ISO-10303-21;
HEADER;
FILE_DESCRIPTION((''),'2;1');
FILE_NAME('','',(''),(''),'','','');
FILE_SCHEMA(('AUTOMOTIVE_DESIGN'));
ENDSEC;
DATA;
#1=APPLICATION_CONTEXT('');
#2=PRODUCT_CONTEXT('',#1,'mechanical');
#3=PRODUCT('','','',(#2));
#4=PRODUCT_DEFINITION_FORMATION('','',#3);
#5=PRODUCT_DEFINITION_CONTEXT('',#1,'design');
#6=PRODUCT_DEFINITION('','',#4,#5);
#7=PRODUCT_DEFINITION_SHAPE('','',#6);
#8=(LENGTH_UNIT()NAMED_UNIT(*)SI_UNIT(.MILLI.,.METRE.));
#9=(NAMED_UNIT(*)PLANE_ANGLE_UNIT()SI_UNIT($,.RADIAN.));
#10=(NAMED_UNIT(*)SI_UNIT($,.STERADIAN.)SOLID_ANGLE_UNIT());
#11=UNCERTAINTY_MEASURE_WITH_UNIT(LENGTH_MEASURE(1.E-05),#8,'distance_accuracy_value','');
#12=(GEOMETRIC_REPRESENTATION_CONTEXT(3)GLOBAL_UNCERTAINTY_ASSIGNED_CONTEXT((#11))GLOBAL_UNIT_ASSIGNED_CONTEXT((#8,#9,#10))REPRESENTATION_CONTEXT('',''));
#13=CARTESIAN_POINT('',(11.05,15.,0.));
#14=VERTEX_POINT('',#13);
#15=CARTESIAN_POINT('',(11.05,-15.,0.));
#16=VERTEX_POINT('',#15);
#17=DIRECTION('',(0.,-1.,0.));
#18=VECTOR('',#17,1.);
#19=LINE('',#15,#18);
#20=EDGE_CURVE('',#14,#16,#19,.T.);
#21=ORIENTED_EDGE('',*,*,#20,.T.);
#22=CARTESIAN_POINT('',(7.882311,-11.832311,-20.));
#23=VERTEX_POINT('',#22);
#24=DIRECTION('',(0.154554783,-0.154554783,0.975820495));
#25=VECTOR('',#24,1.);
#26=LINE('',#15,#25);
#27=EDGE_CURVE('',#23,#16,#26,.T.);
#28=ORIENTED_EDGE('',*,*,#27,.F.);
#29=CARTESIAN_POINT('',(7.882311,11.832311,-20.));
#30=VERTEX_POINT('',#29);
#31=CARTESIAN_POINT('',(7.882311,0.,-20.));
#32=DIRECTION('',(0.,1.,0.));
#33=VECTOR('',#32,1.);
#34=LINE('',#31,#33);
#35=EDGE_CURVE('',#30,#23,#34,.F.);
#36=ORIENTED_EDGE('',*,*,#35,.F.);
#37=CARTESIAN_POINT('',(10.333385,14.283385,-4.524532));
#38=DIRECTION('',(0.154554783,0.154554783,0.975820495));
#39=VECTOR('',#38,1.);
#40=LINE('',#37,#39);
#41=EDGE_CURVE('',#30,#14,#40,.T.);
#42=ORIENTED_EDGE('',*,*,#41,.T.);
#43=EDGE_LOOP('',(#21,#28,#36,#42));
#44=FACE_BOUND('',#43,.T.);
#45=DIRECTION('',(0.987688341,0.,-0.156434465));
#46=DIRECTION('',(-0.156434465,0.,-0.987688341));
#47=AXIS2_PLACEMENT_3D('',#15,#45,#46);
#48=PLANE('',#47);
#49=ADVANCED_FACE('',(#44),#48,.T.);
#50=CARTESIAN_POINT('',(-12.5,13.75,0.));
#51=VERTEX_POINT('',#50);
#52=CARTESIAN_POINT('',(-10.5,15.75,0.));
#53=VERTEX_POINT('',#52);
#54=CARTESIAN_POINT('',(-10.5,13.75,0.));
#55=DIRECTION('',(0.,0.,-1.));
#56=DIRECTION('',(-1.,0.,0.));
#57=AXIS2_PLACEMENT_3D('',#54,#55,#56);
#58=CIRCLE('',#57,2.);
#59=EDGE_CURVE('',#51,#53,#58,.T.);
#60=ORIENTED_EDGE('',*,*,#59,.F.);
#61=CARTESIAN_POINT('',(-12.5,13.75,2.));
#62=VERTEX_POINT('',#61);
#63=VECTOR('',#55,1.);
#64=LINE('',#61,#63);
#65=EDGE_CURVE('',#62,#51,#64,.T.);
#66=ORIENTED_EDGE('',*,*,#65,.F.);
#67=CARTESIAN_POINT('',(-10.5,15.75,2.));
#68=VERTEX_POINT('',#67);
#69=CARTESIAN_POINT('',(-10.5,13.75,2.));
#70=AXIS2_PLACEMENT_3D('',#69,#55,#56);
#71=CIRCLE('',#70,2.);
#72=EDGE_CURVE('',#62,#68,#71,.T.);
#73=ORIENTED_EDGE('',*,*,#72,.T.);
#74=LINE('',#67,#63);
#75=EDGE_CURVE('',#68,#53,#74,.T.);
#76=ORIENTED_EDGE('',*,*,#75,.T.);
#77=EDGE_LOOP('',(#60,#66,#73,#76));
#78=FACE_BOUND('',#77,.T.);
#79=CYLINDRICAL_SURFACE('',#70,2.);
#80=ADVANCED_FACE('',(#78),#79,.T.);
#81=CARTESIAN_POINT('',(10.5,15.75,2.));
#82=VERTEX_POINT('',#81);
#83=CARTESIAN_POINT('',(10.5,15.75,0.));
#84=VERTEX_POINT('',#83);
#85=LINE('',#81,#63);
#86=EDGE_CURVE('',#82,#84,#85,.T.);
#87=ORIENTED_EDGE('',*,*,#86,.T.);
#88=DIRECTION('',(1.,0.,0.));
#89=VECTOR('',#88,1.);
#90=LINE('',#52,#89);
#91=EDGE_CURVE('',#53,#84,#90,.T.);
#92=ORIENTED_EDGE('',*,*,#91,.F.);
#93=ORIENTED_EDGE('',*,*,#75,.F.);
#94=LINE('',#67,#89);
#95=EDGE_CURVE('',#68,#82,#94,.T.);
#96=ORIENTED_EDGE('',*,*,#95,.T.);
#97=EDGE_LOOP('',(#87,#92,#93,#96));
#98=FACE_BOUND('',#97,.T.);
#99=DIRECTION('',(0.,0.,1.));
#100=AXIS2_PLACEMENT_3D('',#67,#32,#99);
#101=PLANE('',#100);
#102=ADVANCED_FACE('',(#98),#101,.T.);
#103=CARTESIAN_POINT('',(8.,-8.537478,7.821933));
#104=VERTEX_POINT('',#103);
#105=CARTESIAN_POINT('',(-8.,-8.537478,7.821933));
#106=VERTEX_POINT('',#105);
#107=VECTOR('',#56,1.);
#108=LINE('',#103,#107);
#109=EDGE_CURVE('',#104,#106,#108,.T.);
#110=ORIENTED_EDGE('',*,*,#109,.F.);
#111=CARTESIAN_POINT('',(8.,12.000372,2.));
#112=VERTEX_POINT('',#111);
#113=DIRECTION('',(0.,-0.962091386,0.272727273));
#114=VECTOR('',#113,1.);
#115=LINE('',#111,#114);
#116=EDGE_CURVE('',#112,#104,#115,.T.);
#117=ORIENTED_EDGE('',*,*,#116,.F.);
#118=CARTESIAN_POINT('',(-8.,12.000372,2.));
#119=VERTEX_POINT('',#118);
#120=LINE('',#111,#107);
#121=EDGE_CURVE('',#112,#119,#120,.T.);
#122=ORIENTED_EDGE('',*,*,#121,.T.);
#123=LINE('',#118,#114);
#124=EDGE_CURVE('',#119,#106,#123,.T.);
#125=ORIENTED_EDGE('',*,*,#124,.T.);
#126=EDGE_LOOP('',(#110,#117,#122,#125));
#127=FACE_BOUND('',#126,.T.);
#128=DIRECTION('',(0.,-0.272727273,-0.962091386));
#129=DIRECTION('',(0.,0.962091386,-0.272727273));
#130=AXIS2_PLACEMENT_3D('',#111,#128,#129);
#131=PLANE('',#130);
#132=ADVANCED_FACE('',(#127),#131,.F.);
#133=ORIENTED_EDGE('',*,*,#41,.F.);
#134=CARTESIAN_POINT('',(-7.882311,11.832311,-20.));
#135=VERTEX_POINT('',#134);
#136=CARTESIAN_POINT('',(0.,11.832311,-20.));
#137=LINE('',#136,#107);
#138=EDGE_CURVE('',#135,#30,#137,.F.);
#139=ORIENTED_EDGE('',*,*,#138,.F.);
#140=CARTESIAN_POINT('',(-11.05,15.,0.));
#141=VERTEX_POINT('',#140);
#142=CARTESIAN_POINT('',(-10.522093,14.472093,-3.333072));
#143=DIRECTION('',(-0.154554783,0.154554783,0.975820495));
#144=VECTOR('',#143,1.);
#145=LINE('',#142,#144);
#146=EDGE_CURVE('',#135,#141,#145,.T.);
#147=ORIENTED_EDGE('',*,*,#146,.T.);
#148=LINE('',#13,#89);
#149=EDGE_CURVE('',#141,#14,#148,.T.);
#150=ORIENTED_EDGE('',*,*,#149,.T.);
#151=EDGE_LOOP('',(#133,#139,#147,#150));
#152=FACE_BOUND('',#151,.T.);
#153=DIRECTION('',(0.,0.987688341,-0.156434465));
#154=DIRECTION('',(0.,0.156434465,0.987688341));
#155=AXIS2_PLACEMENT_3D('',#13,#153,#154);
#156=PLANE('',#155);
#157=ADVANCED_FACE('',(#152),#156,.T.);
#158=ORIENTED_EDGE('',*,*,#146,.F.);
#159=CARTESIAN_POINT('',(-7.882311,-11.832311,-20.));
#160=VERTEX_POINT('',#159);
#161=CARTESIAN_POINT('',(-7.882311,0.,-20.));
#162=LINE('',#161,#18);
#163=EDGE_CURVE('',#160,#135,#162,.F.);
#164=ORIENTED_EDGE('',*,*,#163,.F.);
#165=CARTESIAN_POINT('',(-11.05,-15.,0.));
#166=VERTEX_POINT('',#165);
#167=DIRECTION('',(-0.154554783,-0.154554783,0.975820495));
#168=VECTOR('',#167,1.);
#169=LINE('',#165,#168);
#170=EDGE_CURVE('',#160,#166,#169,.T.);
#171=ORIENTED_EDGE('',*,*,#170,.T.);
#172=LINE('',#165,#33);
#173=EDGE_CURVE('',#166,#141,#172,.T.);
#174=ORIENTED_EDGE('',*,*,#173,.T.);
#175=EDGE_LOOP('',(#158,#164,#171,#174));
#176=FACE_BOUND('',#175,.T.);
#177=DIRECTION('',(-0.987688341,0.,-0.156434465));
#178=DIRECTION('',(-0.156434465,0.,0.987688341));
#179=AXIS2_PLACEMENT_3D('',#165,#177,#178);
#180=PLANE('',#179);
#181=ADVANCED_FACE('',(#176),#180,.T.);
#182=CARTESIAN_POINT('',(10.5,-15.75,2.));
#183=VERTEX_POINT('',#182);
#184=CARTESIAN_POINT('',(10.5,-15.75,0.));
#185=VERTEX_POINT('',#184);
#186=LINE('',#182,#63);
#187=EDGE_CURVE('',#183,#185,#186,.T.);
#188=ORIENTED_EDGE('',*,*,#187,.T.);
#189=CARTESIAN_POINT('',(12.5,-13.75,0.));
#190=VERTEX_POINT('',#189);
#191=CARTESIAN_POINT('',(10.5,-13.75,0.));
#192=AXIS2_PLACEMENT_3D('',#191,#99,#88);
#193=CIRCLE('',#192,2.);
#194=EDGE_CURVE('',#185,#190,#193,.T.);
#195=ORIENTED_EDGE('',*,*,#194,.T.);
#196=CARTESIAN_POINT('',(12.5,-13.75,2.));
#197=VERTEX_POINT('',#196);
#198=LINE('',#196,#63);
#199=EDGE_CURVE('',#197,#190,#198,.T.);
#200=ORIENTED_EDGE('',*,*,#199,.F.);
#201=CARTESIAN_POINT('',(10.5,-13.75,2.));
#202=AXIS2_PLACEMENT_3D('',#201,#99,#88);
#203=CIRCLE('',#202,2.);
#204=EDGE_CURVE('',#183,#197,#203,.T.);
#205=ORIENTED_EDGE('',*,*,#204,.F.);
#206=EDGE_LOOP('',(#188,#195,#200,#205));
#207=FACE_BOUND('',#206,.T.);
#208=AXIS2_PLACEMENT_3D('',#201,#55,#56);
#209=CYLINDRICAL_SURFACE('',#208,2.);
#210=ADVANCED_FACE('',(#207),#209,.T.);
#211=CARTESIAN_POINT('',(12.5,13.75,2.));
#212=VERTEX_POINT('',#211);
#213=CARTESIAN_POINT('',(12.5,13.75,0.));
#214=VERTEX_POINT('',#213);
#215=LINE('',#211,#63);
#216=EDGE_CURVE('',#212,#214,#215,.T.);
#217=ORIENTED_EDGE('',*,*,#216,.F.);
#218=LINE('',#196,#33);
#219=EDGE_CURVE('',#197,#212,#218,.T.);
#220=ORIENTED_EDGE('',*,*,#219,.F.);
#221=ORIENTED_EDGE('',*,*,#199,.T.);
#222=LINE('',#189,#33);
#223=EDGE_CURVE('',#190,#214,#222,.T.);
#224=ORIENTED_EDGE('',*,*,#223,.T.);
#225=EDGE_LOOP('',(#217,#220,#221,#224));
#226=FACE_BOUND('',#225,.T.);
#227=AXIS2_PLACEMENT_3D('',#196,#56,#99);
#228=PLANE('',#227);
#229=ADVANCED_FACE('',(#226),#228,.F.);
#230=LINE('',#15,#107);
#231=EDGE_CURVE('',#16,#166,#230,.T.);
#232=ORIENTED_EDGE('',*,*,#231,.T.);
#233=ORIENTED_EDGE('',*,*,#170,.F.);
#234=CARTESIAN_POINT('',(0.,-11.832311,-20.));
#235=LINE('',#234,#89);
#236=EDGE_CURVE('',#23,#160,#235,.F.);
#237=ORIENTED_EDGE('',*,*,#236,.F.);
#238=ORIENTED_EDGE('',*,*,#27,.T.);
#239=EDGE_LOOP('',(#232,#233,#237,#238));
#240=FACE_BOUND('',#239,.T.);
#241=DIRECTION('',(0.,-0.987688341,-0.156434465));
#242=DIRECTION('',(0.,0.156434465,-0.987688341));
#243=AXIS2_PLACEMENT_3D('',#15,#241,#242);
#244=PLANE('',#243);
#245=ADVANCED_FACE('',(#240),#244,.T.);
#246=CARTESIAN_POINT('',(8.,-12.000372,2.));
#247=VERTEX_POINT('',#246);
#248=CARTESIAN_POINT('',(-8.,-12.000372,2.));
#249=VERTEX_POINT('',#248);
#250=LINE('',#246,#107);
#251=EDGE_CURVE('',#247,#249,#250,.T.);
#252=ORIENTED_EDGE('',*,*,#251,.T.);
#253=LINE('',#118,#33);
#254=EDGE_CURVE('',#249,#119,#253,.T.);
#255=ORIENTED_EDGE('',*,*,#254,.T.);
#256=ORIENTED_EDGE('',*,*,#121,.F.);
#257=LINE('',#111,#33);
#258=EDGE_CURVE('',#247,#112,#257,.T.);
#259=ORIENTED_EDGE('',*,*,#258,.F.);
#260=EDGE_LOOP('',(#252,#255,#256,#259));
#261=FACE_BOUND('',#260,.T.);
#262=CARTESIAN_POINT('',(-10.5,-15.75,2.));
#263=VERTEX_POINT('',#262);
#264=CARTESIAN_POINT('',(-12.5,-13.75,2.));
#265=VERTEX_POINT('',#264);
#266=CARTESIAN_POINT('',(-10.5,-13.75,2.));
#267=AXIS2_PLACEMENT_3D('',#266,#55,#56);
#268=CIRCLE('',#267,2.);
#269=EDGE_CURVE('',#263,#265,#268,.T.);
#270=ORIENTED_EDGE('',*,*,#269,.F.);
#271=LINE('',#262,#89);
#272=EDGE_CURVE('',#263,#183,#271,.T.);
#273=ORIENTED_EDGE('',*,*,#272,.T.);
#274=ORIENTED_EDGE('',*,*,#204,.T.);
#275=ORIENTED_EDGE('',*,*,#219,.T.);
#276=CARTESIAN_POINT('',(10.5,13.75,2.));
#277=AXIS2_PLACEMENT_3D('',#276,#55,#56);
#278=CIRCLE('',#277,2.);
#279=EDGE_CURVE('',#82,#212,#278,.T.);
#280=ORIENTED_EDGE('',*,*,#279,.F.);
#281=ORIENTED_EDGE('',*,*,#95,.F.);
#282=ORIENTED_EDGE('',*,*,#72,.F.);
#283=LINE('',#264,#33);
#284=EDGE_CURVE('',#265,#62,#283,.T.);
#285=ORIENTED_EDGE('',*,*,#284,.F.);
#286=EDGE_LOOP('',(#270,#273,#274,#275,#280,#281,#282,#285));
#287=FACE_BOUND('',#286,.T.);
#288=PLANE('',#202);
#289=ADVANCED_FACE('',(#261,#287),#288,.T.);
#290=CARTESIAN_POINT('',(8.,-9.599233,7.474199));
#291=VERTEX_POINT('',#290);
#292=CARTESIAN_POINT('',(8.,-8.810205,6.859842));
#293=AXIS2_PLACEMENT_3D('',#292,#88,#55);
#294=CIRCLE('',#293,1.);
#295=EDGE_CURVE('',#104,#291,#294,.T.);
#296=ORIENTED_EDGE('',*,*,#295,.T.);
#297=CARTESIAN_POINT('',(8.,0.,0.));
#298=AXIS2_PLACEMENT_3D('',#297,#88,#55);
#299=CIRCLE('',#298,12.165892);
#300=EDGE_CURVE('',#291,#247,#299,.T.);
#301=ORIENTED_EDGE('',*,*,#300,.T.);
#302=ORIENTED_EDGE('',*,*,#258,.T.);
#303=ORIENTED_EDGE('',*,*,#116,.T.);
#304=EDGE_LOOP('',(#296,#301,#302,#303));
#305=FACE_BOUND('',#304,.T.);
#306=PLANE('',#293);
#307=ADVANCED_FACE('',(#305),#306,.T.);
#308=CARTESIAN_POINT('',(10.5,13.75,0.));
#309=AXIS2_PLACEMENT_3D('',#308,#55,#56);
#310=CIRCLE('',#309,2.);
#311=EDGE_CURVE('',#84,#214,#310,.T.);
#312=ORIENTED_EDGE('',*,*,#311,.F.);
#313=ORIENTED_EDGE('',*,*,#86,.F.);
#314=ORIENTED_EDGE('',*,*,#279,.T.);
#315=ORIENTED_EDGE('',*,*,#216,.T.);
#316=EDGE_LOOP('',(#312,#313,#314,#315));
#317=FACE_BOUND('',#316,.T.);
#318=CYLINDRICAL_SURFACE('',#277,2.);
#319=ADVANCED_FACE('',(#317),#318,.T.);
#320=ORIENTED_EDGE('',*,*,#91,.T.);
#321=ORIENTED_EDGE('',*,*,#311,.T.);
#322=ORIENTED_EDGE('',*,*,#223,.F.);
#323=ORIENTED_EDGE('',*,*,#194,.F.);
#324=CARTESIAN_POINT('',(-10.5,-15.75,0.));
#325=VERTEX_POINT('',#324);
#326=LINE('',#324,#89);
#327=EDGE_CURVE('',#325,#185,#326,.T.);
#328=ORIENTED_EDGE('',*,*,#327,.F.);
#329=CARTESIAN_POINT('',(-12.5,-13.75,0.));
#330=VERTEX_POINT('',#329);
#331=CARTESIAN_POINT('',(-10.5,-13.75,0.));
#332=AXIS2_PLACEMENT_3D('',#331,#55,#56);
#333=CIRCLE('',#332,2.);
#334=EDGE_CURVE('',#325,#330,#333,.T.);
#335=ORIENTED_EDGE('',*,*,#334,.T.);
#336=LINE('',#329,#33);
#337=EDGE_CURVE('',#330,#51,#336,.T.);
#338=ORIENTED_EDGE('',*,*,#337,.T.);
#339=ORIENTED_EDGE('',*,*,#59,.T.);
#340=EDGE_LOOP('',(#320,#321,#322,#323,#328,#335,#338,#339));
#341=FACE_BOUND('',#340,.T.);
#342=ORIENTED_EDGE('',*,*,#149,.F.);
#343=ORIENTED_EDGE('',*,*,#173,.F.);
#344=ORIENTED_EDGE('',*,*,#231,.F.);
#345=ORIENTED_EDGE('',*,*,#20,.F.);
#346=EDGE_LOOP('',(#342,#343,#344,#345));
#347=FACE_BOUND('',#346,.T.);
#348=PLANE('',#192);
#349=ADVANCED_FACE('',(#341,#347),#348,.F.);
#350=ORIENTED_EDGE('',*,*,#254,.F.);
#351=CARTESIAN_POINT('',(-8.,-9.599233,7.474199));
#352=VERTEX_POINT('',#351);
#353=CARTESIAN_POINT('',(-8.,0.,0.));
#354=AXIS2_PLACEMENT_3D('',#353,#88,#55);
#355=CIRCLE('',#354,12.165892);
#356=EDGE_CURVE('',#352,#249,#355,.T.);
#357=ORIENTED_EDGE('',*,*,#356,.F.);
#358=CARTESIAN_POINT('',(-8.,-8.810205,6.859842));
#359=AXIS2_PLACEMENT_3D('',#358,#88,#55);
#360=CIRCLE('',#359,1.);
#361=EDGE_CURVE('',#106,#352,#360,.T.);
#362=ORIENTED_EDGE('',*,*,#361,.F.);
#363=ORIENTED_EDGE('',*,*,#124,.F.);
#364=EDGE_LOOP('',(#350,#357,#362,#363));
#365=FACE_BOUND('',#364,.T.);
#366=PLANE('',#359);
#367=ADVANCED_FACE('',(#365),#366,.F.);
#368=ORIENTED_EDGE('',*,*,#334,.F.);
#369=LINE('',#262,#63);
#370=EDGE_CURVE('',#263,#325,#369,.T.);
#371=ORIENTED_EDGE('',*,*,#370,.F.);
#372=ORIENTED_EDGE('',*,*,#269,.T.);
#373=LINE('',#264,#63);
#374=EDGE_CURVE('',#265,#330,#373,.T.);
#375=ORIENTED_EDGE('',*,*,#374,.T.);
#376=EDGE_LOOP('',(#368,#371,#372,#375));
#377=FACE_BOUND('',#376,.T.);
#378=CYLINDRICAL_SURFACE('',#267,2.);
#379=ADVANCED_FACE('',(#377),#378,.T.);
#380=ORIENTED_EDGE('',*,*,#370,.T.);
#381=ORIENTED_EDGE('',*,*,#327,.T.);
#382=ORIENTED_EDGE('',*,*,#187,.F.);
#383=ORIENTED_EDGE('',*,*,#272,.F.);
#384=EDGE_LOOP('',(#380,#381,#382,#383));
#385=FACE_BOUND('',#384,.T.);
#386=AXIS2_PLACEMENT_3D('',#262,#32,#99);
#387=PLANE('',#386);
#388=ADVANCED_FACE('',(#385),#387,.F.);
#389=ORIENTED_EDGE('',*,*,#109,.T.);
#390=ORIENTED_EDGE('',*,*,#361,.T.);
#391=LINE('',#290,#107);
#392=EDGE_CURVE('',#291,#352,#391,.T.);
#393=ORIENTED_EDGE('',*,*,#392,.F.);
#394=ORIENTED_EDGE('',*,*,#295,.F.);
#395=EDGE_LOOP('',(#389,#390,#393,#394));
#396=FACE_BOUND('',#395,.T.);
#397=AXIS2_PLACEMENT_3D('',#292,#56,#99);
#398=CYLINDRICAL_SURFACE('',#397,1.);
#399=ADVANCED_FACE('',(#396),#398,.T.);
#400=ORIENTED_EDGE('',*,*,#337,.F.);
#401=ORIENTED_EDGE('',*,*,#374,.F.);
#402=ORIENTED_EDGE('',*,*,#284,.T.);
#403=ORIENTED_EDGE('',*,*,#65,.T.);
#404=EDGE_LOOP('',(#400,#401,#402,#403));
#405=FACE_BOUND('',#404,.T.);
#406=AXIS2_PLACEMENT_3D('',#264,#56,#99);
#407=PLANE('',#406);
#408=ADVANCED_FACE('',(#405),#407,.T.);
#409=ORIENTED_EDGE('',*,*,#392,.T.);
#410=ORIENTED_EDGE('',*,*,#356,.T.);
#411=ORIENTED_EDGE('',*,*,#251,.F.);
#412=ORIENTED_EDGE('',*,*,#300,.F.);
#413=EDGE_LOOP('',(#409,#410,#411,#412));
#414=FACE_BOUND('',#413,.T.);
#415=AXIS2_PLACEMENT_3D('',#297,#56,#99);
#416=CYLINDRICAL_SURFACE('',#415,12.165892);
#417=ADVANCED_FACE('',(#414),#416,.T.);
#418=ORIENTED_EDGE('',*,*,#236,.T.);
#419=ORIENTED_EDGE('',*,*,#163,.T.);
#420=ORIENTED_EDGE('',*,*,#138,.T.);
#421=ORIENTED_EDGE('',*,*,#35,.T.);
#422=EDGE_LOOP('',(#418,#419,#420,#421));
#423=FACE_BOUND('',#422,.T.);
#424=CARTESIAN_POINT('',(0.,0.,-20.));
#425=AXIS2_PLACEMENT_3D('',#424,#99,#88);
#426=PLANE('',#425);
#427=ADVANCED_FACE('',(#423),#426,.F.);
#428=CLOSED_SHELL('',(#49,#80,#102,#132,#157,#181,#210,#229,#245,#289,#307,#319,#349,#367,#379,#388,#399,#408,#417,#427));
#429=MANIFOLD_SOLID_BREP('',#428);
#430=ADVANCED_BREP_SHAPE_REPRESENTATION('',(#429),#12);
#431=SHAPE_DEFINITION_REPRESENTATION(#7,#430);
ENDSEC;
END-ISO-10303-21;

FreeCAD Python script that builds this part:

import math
import FreeCAD as App
import Part
import Sketcher
from FreeCAD import Vector
Q = App.Units.Quantity


def add_polygon(sketch, points):
    """Adds a closed chain of lines whose ends are joined by coincident constraints."""
    first, n = sketch.GeometryCount, len(points)
    for a, b in zip(points, points[1:] + points[:1]):
        sketch.addGeometry(Part.LineSegment(App.Vector(*a, 0), App.Vector(*b, 0)), False)
    for i in range(n):
        sketch.addConstraint(Sketcher.Constraint("Coincident", first + i, 2, first + (i + 1) % n, 1))

doc = App.newDocument("Part")
body = doc.addObject("PartDesign::Body", "Body")

# Sketch on XY plane
sketch1 = doc.addObject("Sketcher::SketchObject", "Sketch")
body.addObject(sketch1)
sketch1.AttachmentSupport = (doc.XY_Plane, [""])
sketch1.MapMode = "FlatFace"
sketch1.addGeometry([
    Part.LineSegment(Vector(-10.5, -15.8, 0), Vector(10.5, -15.8, 0)),  # 0
    Part.ArcOfCircle(Part.Circle(Vector(10.5, -13.7, 0), Vector(0, 0, 1), 2), math.radians(-90), math.radians(0)),  # 1
    Part.LineSegment(Vector(12.5, -13.8, 0), Vector(12.5, 13.8, 0)),  # 2
    Part.ArcOfCircle(Part.Circle(Vector(10.5, 13.7, 0), Vector(0, 0, 1), 2), math.radians(0), math.radians(90)),  # 3
    Part.LineSegment(Vector(10.5, 15.8, 0), Vector(-10.5, 15.8, 0)),  # 4
    Part.ArcOfCircle(Part.Circle(Vector(-10.5, 13.7, 0), Vector(0, 0, 1), 2), math.radians(90), math.radians(180)),  # 5
    Part.LineSegment(Vector(-12.5, 13.8, 0), Vector(-12.5, -13.8, 0)),  # 6
    Part.ArcOfCircle(Part.Circle(Vector(-10.5, -13.7, 0), Vector(0, 0, 1), 2), math.radians(-180), math.radians(-90)),  # 7
], False)
sketch1.addConstraint([
    Sketcher.Constraint("Tangent", 0, 2, 1, 1),
    Sketcher.Constraint("Tangent", 1, 2, 2, 1),
    Sketcher.Constraint("Tangent", 2, 2, 3, 1),
    Sketcher.Constraint("Tangent", 3, 2, 4, 1),
    Sketcher.Constraint("Tangent", 4, 2, 5, 1),
    Sketcher.Constraint("Tangent", 5, 2, 6, 1),
    Sketcher.Constraint("Tangent", 6, 2, 7, 1),
    Sketcher.Constraint("Tangent", 7, 2, 0, 1),
    Sketcher.Constraint("Horizontal", 0),
    Sketcher.Constraint("Vertical", 2),
    Sketcher.Constraint("Horizontal", 4),
    Sketcher.Constraint("Vertical", 6),
    Sketcher.Constraint("Equal", 1, 3),
    Sketcher.Constraint("Equal", 3, 5),
    Sketcher.Constraint("Equal", 5, 7),
    Sketcher.Constraint("Symmetric", 1, 3, 5, 3, -1, 1),
    Sketcher.Constraint("Radius", 1, Q("2 mm")),
    Sketcher.Constraint("DistanceX", 0, 1, 0, 2, Q("21 mm")),
    Sketcher.Constraint("DistanceY", 2, 1, 2, 2, Q("27.5 mm")),
])
pad1 = doc.addObject("PartDesign::Pad", "Pad")
body.addObject(pad1)
pad1.Profile = sketch1
pad1.Length = 2

# Sketch on YZ plane
sketch2 = doc.addObject("Sketcher::SketchObject", "Sketch001")
body.addObject(sketch2)
sketch2.AttachmentSupport = (doc.YZ_Plane, [""])
sketch2.MapMode = "FlatFace"
sketch2.addGeometry([
    Part.LineSegment(Vector(-12, 2, 0), Vector(12, 2, 0)),
    Part.LineSegment(Vector(12, 2, 0), Vector(-8.5, 7.8, 0)),
    Part.ArcOfCircle(Part.Circle(Vector(-8.8, 6.9, 0), Vector(0, 0, 1), 1), math.radians(74), math.radians(142)),
    Part.ArcOfCircle(Part.Circle(Vector(0, 0, 0), Vector(0, 0, 1), 12.2), math.radians(142), math.radians(171)),
], False)
sketch2.addConstraint([
    Sketcher.Constraint("Coincident", 0, 2, 1, 1),
    Sketcher.Constraint("Tangent", 1, 2, 2, 1),
    Sketcher.Constraint("Tangent", 2, 2, 3, 1),
    Sketcher.Constraint("Coincident", 3, 2, 0, 1),
    Sketcher.Constraint("Horizontal", 0),
    Sketcher.Constraint("Coincident", 3, 3, -1, 1),
    Sketcher.Constraint("Radius", 2, Q("1 mm")),
    Sketcher.Constraint("DistanceY", -1, 1, 0, 2, Q("2 mm")),
    Sketcher.Constraint("Radius", 3, Q("12.165892 mm")),
    Sketcher.Constraint("DistanceY", -1, 1, 2, 2, Q("7.474199 mm")),
    Sketcher.Constraint("Distance", 1, Q("21.347088 mm")),
])
pad2 = doc.addObject("PartDesign::Pad", "Pad001")
body.addObject(pad2)
pad2.Profile = sketch2
pad2.Length = 16
pad2.Midplane = True

# Sketch on XY plane
sketch3 = doc.addObject("Sketcher::SketchObject", "Sketch002")
body.addObject(sketch3)
sketch3.AttachmentSupport = (doc.XY_Plane, [""])
sketch3.MapMode = "FlatFace"
add_polygon(sketch3, [(11, 15), (11, -15), (-11, -15), (-11, 15)])  # lines 0-3
sketch3.addConstraint([
    Sketcher.Constraint("Vertical", 0),
    Sketcher.Constraint("Horizontal", 1),
    Sketcher.Constraint("Vertical", 2),
    Sketcher.Constraint("Horizontal", 3),
    Sketcher.Constraint("Symmetric", 0, 2, 2, 2, -1, 1),
    Sketcher.Constraint("DistanceY", 0, 2, 0, 1, Q("30 mm")),
    Sketcher.Constraint("DistanceX", 1, 2, 1, 1, Q("22.1 mm")),
])
pad3 = doc.addObject("PartDesign::Pad", "Pad002")
body.addObject(pad3)
pad3.Profile = sketch3
pad3.Length = 20
pad3.Reversed = True
pad3.TaperAngle = -9

doc.recompute()
